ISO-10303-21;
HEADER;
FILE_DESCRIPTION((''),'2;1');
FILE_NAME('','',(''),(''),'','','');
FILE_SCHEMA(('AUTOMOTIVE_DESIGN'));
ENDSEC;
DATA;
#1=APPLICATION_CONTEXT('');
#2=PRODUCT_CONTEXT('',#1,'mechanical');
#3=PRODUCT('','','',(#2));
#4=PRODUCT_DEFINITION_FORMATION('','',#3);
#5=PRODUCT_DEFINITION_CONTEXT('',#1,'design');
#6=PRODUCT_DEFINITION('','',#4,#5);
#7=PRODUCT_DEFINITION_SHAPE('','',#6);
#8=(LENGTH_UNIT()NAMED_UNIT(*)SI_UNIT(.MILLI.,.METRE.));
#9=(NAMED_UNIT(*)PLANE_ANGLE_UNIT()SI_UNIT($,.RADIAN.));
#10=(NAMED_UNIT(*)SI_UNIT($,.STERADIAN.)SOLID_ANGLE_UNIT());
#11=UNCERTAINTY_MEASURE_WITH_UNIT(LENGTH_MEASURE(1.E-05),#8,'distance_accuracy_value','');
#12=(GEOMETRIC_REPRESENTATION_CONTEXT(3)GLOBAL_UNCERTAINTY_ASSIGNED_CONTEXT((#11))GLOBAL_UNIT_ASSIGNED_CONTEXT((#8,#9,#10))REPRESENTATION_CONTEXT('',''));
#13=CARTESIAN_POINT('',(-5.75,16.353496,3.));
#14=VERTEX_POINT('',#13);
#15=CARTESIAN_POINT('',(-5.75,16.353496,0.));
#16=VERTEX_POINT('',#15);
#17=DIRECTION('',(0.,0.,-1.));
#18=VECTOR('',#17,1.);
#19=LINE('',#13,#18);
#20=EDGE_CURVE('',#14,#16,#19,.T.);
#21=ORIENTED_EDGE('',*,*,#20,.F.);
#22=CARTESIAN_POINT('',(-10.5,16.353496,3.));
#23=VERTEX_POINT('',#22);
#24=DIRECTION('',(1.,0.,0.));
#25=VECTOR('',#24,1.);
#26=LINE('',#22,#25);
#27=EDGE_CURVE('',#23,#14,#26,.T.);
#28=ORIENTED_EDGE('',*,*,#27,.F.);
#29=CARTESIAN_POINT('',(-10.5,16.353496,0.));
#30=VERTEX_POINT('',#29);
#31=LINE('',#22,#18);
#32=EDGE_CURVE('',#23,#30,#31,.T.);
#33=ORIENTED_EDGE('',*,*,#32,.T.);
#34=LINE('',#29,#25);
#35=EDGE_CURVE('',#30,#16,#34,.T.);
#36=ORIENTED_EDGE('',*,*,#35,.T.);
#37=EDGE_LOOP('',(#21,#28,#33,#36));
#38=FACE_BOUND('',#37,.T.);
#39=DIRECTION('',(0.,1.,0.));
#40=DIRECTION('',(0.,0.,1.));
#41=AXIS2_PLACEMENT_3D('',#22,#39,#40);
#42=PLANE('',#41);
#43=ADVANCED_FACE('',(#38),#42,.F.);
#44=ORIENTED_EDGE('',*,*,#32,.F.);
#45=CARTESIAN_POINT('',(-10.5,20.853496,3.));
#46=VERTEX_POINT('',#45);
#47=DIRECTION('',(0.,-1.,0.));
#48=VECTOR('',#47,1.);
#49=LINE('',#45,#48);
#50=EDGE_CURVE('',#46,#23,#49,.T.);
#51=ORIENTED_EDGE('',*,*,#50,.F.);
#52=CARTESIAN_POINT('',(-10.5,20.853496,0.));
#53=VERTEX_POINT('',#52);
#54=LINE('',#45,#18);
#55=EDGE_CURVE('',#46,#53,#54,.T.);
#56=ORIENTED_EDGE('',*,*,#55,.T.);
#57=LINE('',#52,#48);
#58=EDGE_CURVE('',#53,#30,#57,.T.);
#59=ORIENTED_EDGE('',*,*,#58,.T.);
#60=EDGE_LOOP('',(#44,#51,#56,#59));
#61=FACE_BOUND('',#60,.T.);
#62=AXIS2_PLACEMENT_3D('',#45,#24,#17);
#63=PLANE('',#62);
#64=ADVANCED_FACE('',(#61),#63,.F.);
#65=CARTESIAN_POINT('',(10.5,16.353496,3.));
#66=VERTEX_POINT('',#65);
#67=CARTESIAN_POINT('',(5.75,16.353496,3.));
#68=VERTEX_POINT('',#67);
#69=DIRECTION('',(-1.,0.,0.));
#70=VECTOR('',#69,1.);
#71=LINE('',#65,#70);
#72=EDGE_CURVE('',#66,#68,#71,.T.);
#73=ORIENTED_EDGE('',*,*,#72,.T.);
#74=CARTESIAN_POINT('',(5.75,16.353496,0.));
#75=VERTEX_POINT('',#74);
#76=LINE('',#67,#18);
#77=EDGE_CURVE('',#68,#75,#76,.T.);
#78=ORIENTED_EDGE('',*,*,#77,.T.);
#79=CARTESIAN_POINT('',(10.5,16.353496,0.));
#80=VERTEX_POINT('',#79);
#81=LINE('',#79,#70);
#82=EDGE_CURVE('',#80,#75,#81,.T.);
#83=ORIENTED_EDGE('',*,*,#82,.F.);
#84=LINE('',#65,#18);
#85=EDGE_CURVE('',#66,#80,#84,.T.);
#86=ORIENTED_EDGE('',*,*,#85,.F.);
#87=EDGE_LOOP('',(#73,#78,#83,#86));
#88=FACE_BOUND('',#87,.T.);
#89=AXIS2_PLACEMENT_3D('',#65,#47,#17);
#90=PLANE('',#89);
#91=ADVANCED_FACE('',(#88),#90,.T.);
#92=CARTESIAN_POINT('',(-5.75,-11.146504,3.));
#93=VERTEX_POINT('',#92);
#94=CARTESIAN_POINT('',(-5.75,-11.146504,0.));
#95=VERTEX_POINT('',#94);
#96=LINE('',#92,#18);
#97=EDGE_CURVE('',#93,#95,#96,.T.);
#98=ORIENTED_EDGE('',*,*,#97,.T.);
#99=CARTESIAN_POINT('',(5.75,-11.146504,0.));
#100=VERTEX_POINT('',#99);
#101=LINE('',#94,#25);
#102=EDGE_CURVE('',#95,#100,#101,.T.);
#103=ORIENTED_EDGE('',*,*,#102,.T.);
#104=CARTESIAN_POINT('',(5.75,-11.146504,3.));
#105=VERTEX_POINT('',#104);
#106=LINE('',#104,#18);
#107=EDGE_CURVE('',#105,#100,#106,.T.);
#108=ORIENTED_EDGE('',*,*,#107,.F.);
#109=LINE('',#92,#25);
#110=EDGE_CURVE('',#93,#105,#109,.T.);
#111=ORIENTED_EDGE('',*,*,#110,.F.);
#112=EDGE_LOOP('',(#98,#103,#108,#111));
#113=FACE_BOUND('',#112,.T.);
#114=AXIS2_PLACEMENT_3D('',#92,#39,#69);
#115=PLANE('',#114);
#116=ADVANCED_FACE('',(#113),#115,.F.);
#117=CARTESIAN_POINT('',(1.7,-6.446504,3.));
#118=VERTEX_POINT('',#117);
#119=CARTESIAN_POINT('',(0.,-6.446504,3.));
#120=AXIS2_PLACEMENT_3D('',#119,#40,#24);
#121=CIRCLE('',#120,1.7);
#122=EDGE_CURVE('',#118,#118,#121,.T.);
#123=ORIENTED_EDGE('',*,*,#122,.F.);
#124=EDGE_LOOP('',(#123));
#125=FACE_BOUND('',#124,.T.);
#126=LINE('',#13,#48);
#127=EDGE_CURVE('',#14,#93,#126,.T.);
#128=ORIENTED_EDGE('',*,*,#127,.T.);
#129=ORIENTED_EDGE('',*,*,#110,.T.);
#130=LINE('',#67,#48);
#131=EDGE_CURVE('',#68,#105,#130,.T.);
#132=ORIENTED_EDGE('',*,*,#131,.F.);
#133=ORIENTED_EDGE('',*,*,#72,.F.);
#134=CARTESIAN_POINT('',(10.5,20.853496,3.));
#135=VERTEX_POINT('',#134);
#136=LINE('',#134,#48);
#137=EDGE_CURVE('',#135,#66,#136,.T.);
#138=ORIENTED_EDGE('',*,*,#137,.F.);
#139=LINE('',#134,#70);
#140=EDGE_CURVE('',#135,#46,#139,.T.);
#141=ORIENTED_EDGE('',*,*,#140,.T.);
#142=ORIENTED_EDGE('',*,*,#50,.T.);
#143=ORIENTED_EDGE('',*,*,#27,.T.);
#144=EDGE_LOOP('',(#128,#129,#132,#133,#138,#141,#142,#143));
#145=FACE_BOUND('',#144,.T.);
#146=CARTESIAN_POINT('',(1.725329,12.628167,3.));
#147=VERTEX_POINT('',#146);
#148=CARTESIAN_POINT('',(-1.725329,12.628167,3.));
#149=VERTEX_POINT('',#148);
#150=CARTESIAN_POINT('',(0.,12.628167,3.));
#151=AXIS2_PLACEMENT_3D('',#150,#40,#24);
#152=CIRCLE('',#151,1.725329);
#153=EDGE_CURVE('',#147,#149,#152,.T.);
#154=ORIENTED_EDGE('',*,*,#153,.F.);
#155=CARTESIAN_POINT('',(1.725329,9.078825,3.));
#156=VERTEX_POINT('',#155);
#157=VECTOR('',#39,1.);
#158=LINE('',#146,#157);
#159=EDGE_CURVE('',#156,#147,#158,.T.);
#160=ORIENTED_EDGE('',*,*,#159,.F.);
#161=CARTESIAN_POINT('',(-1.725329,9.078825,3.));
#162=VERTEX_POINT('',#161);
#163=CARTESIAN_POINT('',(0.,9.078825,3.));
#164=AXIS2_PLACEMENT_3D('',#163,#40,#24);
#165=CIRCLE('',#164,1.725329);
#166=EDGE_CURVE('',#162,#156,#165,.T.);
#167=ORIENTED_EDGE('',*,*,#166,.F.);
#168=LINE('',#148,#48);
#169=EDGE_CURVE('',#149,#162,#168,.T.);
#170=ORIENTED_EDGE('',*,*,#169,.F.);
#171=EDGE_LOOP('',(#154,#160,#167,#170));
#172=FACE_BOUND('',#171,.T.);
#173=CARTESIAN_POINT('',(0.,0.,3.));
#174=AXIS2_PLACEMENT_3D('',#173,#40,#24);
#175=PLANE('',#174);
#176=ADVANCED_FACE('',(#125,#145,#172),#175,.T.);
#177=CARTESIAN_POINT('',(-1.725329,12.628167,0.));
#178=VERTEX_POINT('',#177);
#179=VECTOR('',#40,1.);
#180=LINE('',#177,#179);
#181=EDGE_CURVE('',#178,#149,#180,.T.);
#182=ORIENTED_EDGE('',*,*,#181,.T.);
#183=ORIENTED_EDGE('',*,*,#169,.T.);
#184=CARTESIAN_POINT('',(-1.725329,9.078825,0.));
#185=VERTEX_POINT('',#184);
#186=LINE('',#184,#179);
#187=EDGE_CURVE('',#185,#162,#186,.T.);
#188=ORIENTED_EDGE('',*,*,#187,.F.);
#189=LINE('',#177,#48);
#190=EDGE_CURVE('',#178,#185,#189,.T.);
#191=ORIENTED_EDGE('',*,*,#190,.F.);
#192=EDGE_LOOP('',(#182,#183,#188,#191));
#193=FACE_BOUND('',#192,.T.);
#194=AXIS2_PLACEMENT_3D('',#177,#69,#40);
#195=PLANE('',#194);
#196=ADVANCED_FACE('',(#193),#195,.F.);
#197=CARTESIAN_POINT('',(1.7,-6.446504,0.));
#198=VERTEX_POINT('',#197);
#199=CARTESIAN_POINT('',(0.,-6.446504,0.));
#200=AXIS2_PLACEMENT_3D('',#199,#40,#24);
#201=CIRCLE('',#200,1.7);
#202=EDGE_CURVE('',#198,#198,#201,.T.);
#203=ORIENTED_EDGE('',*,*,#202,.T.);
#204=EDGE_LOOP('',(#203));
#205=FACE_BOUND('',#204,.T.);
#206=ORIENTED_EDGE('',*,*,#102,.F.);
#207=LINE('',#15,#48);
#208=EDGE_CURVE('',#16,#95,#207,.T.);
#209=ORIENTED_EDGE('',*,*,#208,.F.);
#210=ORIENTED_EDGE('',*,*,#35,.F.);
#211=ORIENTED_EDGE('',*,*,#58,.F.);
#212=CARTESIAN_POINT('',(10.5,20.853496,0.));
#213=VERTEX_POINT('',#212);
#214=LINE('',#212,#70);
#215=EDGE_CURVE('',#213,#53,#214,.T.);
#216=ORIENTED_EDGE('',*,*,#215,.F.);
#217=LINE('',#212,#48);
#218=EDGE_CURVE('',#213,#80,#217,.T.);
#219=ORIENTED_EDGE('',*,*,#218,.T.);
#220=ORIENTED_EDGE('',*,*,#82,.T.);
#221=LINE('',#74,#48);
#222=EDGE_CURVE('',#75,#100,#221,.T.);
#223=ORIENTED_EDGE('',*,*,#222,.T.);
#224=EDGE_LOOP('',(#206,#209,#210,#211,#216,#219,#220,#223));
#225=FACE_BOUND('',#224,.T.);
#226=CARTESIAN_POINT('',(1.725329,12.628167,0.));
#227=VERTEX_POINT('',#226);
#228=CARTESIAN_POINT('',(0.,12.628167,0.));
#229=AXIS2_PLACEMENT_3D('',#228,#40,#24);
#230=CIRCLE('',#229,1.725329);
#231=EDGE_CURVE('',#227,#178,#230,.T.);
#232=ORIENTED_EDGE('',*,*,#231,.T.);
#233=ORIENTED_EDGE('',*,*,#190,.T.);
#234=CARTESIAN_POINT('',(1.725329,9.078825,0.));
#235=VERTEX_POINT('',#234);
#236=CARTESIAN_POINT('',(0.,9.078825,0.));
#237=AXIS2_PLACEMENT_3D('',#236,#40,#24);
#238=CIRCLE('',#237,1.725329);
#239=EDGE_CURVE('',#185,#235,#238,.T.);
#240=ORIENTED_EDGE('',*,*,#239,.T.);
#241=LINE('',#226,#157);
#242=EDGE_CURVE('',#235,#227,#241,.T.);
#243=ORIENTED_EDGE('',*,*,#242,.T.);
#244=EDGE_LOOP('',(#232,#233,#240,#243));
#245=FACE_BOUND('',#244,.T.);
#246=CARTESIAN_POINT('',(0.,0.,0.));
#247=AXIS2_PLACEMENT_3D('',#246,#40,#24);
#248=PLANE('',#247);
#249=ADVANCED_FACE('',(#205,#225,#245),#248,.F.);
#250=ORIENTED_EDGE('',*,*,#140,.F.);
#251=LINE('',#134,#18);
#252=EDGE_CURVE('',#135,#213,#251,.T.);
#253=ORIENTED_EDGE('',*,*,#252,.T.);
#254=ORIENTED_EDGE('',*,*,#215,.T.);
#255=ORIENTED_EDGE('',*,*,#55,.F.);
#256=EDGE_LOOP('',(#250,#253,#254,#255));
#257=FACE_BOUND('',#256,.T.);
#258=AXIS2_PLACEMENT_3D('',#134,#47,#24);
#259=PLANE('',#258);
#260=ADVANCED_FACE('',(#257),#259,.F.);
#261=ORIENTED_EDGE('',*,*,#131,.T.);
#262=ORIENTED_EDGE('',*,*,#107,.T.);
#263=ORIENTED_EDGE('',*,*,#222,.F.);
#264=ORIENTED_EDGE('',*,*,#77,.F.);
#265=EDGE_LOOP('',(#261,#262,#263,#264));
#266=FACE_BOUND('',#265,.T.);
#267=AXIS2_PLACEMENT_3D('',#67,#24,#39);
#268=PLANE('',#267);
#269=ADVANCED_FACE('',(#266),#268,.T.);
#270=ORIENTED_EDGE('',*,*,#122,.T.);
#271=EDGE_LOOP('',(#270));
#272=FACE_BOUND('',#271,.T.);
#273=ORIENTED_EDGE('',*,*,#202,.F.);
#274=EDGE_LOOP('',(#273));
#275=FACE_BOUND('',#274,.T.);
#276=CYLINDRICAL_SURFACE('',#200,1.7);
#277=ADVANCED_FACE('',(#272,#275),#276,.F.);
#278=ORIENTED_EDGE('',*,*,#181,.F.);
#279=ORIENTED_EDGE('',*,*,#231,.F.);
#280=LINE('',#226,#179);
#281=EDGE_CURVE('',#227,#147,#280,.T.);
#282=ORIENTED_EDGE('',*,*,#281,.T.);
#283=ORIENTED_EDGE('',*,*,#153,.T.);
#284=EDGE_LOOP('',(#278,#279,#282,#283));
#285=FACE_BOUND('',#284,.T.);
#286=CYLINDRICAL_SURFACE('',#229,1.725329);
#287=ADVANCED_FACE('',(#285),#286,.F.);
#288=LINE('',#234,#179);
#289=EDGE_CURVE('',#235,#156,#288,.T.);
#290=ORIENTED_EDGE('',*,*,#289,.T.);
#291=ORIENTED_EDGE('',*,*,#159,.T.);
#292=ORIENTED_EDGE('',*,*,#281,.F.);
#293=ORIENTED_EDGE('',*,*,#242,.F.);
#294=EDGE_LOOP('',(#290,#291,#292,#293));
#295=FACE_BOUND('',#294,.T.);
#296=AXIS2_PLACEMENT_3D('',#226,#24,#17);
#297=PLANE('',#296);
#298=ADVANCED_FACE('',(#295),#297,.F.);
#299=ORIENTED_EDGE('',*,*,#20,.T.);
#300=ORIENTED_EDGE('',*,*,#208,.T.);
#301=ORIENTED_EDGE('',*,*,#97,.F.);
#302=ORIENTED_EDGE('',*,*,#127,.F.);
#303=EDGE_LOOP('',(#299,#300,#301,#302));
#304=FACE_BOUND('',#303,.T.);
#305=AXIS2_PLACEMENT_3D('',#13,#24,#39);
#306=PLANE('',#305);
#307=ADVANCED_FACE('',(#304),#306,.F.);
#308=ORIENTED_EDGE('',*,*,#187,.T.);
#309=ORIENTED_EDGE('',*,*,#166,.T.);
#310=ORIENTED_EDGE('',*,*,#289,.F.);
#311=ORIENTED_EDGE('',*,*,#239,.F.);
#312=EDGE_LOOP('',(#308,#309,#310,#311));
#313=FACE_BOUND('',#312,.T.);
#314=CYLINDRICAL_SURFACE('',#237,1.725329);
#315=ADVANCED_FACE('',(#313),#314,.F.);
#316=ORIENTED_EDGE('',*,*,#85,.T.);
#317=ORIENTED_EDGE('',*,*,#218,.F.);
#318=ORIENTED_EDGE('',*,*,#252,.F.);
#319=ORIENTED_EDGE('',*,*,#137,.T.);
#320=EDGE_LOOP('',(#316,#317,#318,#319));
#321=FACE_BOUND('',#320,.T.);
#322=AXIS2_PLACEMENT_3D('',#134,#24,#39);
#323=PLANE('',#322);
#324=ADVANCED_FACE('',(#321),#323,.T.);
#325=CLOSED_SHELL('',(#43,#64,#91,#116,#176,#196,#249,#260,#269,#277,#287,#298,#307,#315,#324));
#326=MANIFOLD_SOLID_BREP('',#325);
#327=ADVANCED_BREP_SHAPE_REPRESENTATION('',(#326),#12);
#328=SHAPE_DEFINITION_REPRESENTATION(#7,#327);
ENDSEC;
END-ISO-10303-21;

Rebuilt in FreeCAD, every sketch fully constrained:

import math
import FreeCAD as App
import Part
import Sketcher

V = App.Vector

doc = App.newDocument("Part")
params = doc.addObject("Spreadsheet::Sheet", "Params")
for row, (alias, value) in enumerate([
    ("sketch1_width", "21 mm"),
    ("sketch1_width2", "11.5 mm"),
    ("sketch1_height", "4.5 mm"),
    ("sketch1_height2", "27.5 mm"),
    ("pad1_length", "3 mm"),
    ("sketch2_diameter", "3.4 mm"),
    ("pocket1_length", "3 mm"),
], start=1):
    params.set(f"A{row}", alias)
    params.set(f"B{row}", "=" + value)
    params.setAlias(f"B{row}", alias)

body = doc.addObject("PartDesign::Body", "Body")

sketch1 = body.newObject("Sketcher::SketchObject", "Sketch")
sketch1.AttachmentSupport = (doc.getObject("XY_Plane"), [""])
sketch1.MapMode = "FlatFace"
sketch1.addGeometry([
    Part.LineSegment(V(10.5, 20.9, 0), V(-10.5, 20.9, 0)),
    Part.LineSegment(V(-10.5, 20.9, 0), V(-10.5, 16.4, 0)),
    Part.LineSegment(V(-10.5, 16.4, 0), V(-5.8, 16.4, 0)),
    Part.LineSegment(V(-5.8, 16.4, 0), V(-5.8, -11.1, 0)),
    Part.LineSegment(V(-5.8, -11.1, 0), V(5.8, -11.1, 0)),
    Part.LineSegment(V(5.8, -11.1, 0), V(5.8, 16.4, 0)),
    Part.LineSegment(V(5.8, 16.4, 0), V(10.5, 16.4, 0)),
    Part.LineSegment(V(10.5, 16.4, 0), V(10.5, 20.9, 0)),
], False)
sketch1.addConstraint([
    Sketcher.Constraint("Coincident", 0, 2, 1, 1),
    Sketcher.Constraint("Coincident", 1, 2, 2, 1),
    Sketcher.Constraint("Coincident", 2, 2, 3, 1),
    Sketcher.Constraint("Coincident", 3, 2, 4, 1),
    Sketcher.Constraint("Coincident", 4, 2, 5, 1),
    Sketcher.Constraint("Coincident", 5, 2, 6, 1),
    Sketcher.Constraint("Coincident", 6, 2, 7, 1),
    Sketcher.Constraint("Coincident", 7, 2, 0, 1),
    Sketcher.Constraint("Horizontal", 0),
    Sketcher.Constraint("Vertical", 1),
    Sketcher.Constraint("Horizontal", 2),
    Sketcher.Constraint("Vertical", 3),
    Sketcher.Constraint("Horizontal", 4),
    Sketcher.Constraint("Vertical", 5),
    Sketcher.Constraint("Horizontal", 6),
    Sketcher.Constraint("Vertical", 7),
    Sketcher.Constraint("Symmetric", 2, 2, 5, 2, -2),
    Sketcher.Constraint("Equal", 2, 6),
    Sketcher.Constraint("DistanceX", 0, 2, 0, 1, 21.0),
    Sketcher.Constraint("DistanceX", 4, 1, 4, 2, 11.5),
    Sketcher.Constraint("DistanceY", 1, 2, 1, 1, 4.5),
    Sketcher.Constraint("DistanceY", 3, 2, 3, 1, 27.5),
    Sketcher.Constraint("DistanceY", -1, 1, 0, 2, 20.853496),
])
sketch1.setExpression("Constraints[18]", "Params.sketch1_width")
sketch1.setExpression("Constraints[19]", "Params.sketch1_width2")
sketch1.setExpression("Constraints[20]", "Params.sketch1_height")
sketch1.setExpression("Constraints[21]", "Params.sketch1_height2")
pad1 = body.newObject("PartDesign::Pad", "Pad")
pad1.Profile = sketch1
pad1.setExpression("Length", "Params.pad1_length")

sketch2 = body.newObject("Sketcher::SketchObject", "Sketch001")
sketch2.AttachmentSupport = (doc.getObject("XY_Plane"), [""])
sketch2.MapMode = "FlatFace"
sketch2.AttachmentOffset = App.Placement(V(0, 0, 3), App.Rotation())
sketch2.addGeometry([
    Part.Circle(V(0, -6.4, 0), V(0, 0, 1), 1.7),
    Part.LineSegment(V(1.7, 9.1, 0), V(1.7, 12.6, 0)),
    Part.ArcOfCircle(Part.Circle(V(0, 12.6, 0), V(0, 0, 1), 1.7), math.radians(0), math.radians(180)),
    Part.LineSegment(V(-1.7, 12.6, 0), V(-1.7, 9.1, 0)),
    Part.ArcOfCircle(Part.Circle(V(0, 9.1, 0), V(0, 0, 1), 1.7), math.radians(180), math.radians(360)),
], False)
sketch2.addConstraint([
    Sketcher.Constraint("Tangent", 1, 2, 2, 1),
    Sketcher.Constraint("Tangent", 2, 2, 3, 1),
    Sketcher.Constraint("Tangent", 3, 2, 4, 1),
    Sketcher.Constraint("Tangent", 4, 2, 1, 1),
    Sketcher.Constraint("Vertical", 1),
    Sketcher.Constraint("Vertical", 3),
    Sketcher.Constraint("PointOnObject", 0, 3, -2),
    Sketcher.Constraint("PointOnObject", 2, 3, -2),
    Sketcher.Constraint("Diameter", 0, 3.4),
    Sketcher.Constraint("Radius", 2, 1.725329),
    Sketcher.Constraint("DistanceY", 1, 1, 1, 2, 3.549342),
    Sketcher.Constraint("DistanceY", 0, 3, 2, 3, 19.074671),
    Sketcher.Constraint("DistanceY", 0, 3, -1, 1, 6.446504),
])
sketch2.setExpression("Constraints[8]", "Params.sketch2_diameter")
pocket1 = body.newObject("PartDesign::Pocket", "Pocket")
pocket1.Profile = sketch2
pocket1.setExpression("Length", "Params.pocket1_length")

doc.recompute()
